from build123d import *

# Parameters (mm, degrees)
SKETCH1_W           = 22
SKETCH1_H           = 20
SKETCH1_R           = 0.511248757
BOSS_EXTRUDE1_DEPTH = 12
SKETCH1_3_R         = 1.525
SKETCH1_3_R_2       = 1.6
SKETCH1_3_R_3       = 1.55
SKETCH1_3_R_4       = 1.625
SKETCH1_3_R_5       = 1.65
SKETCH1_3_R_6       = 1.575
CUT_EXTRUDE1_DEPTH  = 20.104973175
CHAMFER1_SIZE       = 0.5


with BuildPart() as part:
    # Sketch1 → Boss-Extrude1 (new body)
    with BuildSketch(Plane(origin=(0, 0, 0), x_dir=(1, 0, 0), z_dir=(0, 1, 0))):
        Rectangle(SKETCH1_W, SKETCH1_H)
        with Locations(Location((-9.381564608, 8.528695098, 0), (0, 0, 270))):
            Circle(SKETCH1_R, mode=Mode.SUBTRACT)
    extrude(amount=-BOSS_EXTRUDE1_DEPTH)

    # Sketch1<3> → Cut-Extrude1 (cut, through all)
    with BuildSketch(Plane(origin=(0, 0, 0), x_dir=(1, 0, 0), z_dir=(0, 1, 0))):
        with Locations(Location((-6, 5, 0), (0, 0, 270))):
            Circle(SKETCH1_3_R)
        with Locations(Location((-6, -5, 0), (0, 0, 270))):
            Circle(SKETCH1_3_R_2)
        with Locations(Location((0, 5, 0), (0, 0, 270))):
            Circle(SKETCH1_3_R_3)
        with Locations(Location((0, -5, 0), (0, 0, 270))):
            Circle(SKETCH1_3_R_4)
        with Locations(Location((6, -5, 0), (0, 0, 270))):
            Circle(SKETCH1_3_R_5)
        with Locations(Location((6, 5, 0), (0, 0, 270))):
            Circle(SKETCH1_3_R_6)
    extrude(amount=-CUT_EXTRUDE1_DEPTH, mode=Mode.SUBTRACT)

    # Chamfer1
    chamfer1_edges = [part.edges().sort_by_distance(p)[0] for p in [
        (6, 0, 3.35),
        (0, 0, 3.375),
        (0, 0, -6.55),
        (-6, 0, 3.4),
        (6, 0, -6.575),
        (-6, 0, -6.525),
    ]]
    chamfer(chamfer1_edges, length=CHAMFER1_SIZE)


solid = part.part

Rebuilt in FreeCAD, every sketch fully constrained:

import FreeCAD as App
import Part
import Sketcher
from FreeCAD import Vector


def edges_at(feature, points):
    """Names of the edges that pass closest to the given points."""
    edges = feature.Shape.Edges
    near = lambda p: min(range(len(edges)), key=lambda i: edges[i].distToShape(Part.Vertex(*p))[0])
    return sorted({f"Edge{near(p) + 1}" for p in points})

doc = App.newDocument("Part")
params = doc.addObject("Spreadsheet::Sheet", "Params")
for row, (alias, value) in enumerate([
    ("sketch1_width", "22 mm"),
    ("sketch1_height", "20 mm"),
    ("pad1_length", "12 mm"),
    ("sketch2_diameter", "3.2 mm"),
    ("sketch2_diameter2", "3.1 mm"),
    ("sketch2_diameter3", "3.3 mm"),
    ("sketch2_diameter4", "3.05 mm"),
    ("sketch2_diameter5", "3.25 mm"),
    ("chamfer_size", "0.5 mm"),
], start=1):
    params.set(f"A{row}", alias)
    params.set(f"B{row}", "=" + value)
    params.setAlias(f"B{row}", alias)

body = doc.addObject("PartDesign::Body", "Body")

sketch1 = doc.addObject("Sketcher::SketchObject", "Sketch")
body.addObject(sketch1)
sketch1.AttachmentSupport = (doc.XZ_Plane, [""])
sketch1.MapMode = "FlatFace"
sketch1.addGeometry([
    Part.LineSegment(Vector(-11, -10, 0), Vector(-11, 10, 0)),
    Part.LineSegment(Vector(-11, 10, 0), Vector(11, 10, 0)),
    Part.LineSegment(Vector(11, 10, 0), Vector(11, -10, 0)),
    Part.LineSegment(Vector(11, -10, 0), Vector(-11, -10, 0)),
    Part.Circle(Vector(-9.4, -8.5, 0), Vector(0, 0, 1), 0.5),
], False)
sketch1.addConstraint([
    Sketcher.Constraint("Coincident", 0, 2, 1, 1),
    Sketcher.Constraint("Coincident", 1, 2, 2, 1),
    Sketcher.Constraint("Coincident", 2, 2, 3, 1),
    Sketcher.Constraint("Coincident", 3, 2, 0, 1),
    Sketcher.Constraint("Vertical", 0),
    Sketcher.Constraint("Horizontal", 1),
    Sketcher.Constraint("Vertical", 2),
    Sketcher.Constraint("Horizontal", 3),
    Sketcher.Constraint("Symmetric", 0, 2, 2, 2, -1, 1),
    Sketcher.Constraint("DistanceX", 1, 1, 1, 2, 22.0),
    Sketcher.Constraint("DistanceY", 0, 1, 0, 2, 20.0),
    Sketcher.Constraint("Diameter", 4, 1.022498),
    Sketcher.Constraint("DistanceX", 4, 3, -1, 1, 9.381565),
    Sketcher.Constraint("DistanceY", 4, 3, -1, 1, 8.528695),
])
sketch1.setExpression("Constraints[9]", "Params.sketch1_width")
sketch1.setExpression("Constraints[10]", "Params.sketch1_height")
pad1 = doc.addObject("PartDesign::Pad", "Pad")
body.addObject(pad1)
pad1.Profile = sketch1
pad1.setExpression("Length", "Params.pad1_length")

sketch2 = doc.addObject("Sketcher::SketchObject", "Sketch001")
body.addObject(sketch2)
sketch2.AttachmentSupport = (doc.XZ_Plane, [""])
sketch2.MapMode = "FlatFace"
sketch2.addGeometry([
    Part.Circle(Vector(-6, -5, 0), Vector(0, 0, 1), 1.5),
    Part.Circle(Vector(-6, 5, 0), Vector(0, 0, 1), 1.6),
    Part.Circle(Vector(0, -5, 0), Vector(0, 0, 1), 1.6),
    Part.Circle(Vector(0, 5, 0), Vector(0, 0, 1), 1.6),
    Part.Circle(Vector(6, 5, 0), Vector(0, 0, 1), 1.6),
    Part.Circle(Vector(6, -5, 0), Vector(0, 0, 1), 1.6),
], False)
sketch2.addConstraint([
    Sketcher.Constraint("Symmetric", 2, 3, 3, 3, -1, 1),
    Sketcher.Constraint("Symmetric", 0, 3, 4, 3, -1, 1),
    Sketcher.Constraint("Symmetric", 1, 3, 5, 3, -1, 1),
    Sketcher.Constraint("Symmetric", 1, 3, 4, 3, -2),
    Sketcher.Constraint("PointOnObject", 2, 3, -2),
    Sketcher.Constraint("Horizontal", 0, 3, 2, 3),
    Sketcher.Constraint("Diameter", 1, 3.2),
    Sketcher.Constraint("Diameter", 2, 3.1),
    Sketcher.Constraint("Diameter", 4, 3.3),
    Sketcher.Constraint("Diameter", 0, 3.05),
    Sketcher.Constraint("Diameter", 3, 3.25),
    Sketcher.Constraint("Diameter", 5, 3.15),
    Sketcher.Constraint("DistanceX", 0, 3, -1, 1, 6.0),
    Sketcher.Constraint("DistanceY", 0, 3, -1, 1, 5.0),
])
sketch2.setExpression("Constraints[6]", "Params.sketch2_diameter")
sketch2.setExpression("Constraints[7]", "Params.sketch2_diameter2")
sketch2.setExpression("Constraints[8]", "Params.sketch2_diameter3")
sketch2.setExpression("Constraints[9]", "Params.sketch2_diameter4")
sketch2.setExpression("Constraints[10]", "Params.sketch2_diameter5")
pocket1 = doc.addObject("PartDesign::Pocket", "Pocket")
body.addObject(pocket1)
pocket1.Profile = sketch2
pocket1.Type = "ThroughAll"
pocket1.Reversed = True
doc.recompute()

chamfer = doc.addObject("PartDesign::Chamfer", "Chamfer")
body.addObject(chamfer)
chamfer.Base = (pocket1, edges_at(pocket1, [
    (6, 0, 3.35),
    (0, 0, 3.375),
    (0, 0, -6.55),
    (-6, 0, 3.4),
    (6, 0, -6.575),
    (-6, 0, -6.525),
]))
chamfer.setExpression("Size", "Params.chamfer_size")

doc.recompute()
